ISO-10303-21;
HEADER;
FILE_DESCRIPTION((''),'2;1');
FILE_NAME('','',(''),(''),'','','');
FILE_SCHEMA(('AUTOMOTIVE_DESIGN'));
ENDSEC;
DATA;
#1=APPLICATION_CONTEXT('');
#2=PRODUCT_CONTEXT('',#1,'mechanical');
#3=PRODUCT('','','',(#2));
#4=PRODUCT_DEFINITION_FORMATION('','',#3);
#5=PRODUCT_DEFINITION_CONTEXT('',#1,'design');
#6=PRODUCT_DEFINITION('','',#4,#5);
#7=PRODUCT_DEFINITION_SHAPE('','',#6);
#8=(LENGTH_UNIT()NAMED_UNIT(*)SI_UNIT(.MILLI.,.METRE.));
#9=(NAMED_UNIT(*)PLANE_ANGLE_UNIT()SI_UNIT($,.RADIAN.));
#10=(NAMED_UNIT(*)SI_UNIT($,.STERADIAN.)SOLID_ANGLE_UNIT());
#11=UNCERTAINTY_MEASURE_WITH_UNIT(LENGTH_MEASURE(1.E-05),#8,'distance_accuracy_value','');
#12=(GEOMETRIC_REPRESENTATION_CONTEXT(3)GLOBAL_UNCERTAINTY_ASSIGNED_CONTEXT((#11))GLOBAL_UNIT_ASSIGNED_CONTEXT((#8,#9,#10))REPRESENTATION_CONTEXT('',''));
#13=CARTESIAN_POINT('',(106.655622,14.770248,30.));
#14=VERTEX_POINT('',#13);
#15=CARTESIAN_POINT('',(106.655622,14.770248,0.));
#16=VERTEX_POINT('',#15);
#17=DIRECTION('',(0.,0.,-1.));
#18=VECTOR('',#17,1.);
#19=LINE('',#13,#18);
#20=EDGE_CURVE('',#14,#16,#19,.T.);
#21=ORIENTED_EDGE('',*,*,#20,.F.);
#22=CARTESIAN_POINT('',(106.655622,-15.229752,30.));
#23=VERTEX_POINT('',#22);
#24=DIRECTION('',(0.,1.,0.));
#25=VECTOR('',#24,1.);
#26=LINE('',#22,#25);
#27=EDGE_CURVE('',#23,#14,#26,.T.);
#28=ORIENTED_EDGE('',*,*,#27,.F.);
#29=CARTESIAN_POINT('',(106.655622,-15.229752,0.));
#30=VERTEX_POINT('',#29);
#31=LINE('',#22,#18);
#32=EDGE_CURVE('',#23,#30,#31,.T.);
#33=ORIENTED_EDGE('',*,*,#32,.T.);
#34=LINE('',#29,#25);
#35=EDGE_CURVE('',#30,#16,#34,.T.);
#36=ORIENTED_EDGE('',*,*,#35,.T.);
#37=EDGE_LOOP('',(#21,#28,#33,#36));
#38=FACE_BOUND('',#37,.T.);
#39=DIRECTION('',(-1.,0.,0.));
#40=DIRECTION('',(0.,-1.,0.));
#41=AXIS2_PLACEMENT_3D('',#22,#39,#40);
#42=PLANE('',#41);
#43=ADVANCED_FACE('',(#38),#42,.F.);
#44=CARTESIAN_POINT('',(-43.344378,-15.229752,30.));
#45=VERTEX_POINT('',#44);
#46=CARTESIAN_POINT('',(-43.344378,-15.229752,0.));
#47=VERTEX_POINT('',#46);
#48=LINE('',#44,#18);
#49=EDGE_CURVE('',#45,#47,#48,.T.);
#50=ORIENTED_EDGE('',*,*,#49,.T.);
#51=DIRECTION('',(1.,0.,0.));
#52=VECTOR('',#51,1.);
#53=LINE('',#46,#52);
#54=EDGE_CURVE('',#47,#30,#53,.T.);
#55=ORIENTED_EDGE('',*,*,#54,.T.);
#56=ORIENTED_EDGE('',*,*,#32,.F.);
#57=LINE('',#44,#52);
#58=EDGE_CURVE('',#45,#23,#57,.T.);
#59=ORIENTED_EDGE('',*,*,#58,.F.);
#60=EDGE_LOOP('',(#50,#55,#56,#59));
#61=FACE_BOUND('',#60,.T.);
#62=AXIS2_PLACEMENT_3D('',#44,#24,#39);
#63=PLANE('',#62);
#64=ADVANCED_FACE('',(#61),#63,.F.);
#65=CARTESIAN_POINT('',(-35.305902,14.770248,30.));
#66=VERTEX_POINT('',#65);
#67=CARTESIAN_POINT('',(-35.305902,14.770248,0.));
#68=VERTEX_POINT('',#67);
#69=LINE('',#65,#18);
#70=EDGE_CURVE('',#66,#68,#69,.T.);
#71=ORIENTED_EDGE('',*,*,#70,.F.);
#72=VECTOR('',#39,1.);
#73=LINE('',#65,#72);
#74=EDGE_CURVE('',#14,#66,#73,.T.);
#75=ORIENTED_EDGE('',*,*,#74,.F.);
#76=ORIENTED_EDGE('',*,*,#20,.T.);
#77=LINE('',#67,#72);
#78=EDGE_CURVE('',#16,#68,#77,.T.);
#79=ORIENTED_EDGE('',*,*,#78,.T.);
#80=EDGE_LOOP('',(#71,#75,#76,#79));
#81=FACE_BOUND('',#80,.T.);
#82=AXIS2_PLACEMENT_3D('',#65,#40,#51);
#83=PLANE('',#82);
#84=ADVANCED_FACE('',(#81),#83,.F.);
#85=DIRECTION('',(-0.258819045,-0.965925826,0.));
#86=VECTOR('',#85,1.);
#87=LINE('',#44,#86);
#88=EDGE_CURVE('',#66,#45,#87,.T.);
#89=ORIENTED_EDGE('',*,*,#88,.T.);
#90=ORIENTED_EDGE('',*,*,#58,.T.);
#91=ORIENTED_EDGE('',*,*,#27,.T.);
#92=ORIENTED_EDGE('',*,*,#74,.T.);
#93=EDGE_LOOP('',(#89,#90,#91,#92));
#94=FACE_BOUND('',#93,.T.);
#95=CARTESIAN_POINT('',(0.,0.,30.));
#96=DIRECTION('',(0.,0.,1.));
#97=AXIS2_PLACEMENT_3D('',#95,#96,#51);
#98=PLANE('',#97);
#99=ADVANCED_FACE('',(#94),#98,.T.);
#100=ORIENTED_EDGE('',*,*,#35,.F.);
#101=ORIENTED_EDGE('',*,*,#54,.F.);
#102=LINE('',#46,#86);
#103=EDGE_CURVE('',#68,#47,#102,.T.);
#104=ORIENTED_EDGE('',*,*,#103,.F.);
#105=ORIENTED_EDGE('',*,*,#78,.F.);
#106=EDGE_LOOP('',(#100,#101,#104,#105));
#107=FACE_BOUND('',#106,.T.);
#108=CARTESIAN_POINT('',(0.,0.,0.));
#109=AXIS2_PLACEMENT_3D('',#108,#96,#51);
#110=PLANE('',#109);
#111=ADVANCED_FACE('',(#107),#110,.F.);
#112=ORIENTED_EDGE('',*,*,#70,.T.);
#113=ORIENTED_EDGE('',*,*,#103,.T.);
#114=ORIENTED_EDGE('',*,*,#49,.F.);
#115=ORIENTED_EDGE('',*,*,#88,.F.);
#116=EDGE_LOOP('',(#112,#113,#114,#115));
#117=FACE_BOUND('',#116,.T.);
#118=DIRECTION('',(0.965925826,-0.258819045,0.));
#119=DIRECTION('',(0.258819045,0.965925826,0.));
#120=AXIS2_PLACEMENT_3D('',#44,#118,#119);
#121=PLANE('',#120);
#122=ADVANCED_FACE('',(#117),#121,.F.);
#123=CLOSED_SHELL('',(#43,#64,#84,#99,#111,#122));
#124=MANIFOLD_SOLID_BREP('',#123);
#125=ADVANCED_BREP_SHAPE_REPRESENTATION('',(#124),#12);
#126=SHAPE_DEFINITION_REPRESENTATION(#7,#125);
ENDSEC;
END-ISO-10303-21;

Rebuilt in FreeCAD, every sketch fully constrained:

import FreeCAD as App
import Part
import Sketcher
from FreeCAD import Vector
Q = App.Units.Quantity

doc = App.newDocument("Part")
params = doc.addObject("Spreadsheet::Sheet", "Params")
for row, (alias, value) in enumerate([
    ("sketch1_width", "150 mm"),
    ("sketch1_height", "30 mm"),
    ("pad1_length", "30 mm"),
], start=1):
    params.set(f"A{row}", alias)
    params.set(f"B{row}", "=" + value)
    params.setAlias(f"B{row}", alias)

body = doc.addObject("PartDesign::Body", "Body")

# Sketch on XY plane
sketch1 = doc.addObject("Sketcher::SketchObject", "Sketch")
body.addObject(sketch1)
sketch1.AttachmentSupport = (doc.XY_Plane, [""])
sketch1.MapMode = "FlatFace"
sketch1.addGeometry([
    Part.LineSegment(Vector(-35, 15, 0), Vector(-43, -15, 0)),
    Part.LineSegment(Vector(-43, -15, 0), Vector(107, -15, 0)),
    Part.LineSegment(Vector(107, -15, 0), Vector(107, 15, 0)),
    Part.LineSegment(Vector(107, 15, 0), Vector(-35, 15, 0)),
], False)
sketch1.addConstraint([
    Sketcher.Constraint("Coincident", 0, 2, 1, 1),
    Sketcher.Constraint("Coincident", 1, 2, 2, 1),
    Sketcher.Constraint("Coincident", 2, 2, 3, 1),
    Sketcher.Constraint("Coincident", 3, 2, 0, 1),
    Sketcher.Constraint("Horizontal", 1),
    Sketcher.Constraint("Vertical", 2),
    Sketcher.Constraint("Horizontal", 3),
    Sketcher.Constraint("DistanceX", 1, 1, 1, 2, Q("150 mm")),
    Sketcher.Constraint("DistanceY", 2, 1, 2, 2, Q("30 mm")),
    Sketcher.Constraint("Angle", 0, Q("-105 deg")),
    Sketcher.Constraint("DistanceX", 3, 2, -1, 1, Q("35.305902 mm")),
    Sketcher.Constraint("DistanceY", 0, 2, -1, 1, Q("15.229752 mm")),
])
sketch1.setExpression("Constraints[7]", "Params.sketch1_width")
sketch1.setExpression("Constraints[8]", "Params.sketch1_height")
pad1 = doc.addObject("PartDesign::Pad", "Pad")
body.addObject(pad1)
pad1.Profile = sketch1
pad1.setExpression("Length", "Params.pad1_length")

doc.recompute()
